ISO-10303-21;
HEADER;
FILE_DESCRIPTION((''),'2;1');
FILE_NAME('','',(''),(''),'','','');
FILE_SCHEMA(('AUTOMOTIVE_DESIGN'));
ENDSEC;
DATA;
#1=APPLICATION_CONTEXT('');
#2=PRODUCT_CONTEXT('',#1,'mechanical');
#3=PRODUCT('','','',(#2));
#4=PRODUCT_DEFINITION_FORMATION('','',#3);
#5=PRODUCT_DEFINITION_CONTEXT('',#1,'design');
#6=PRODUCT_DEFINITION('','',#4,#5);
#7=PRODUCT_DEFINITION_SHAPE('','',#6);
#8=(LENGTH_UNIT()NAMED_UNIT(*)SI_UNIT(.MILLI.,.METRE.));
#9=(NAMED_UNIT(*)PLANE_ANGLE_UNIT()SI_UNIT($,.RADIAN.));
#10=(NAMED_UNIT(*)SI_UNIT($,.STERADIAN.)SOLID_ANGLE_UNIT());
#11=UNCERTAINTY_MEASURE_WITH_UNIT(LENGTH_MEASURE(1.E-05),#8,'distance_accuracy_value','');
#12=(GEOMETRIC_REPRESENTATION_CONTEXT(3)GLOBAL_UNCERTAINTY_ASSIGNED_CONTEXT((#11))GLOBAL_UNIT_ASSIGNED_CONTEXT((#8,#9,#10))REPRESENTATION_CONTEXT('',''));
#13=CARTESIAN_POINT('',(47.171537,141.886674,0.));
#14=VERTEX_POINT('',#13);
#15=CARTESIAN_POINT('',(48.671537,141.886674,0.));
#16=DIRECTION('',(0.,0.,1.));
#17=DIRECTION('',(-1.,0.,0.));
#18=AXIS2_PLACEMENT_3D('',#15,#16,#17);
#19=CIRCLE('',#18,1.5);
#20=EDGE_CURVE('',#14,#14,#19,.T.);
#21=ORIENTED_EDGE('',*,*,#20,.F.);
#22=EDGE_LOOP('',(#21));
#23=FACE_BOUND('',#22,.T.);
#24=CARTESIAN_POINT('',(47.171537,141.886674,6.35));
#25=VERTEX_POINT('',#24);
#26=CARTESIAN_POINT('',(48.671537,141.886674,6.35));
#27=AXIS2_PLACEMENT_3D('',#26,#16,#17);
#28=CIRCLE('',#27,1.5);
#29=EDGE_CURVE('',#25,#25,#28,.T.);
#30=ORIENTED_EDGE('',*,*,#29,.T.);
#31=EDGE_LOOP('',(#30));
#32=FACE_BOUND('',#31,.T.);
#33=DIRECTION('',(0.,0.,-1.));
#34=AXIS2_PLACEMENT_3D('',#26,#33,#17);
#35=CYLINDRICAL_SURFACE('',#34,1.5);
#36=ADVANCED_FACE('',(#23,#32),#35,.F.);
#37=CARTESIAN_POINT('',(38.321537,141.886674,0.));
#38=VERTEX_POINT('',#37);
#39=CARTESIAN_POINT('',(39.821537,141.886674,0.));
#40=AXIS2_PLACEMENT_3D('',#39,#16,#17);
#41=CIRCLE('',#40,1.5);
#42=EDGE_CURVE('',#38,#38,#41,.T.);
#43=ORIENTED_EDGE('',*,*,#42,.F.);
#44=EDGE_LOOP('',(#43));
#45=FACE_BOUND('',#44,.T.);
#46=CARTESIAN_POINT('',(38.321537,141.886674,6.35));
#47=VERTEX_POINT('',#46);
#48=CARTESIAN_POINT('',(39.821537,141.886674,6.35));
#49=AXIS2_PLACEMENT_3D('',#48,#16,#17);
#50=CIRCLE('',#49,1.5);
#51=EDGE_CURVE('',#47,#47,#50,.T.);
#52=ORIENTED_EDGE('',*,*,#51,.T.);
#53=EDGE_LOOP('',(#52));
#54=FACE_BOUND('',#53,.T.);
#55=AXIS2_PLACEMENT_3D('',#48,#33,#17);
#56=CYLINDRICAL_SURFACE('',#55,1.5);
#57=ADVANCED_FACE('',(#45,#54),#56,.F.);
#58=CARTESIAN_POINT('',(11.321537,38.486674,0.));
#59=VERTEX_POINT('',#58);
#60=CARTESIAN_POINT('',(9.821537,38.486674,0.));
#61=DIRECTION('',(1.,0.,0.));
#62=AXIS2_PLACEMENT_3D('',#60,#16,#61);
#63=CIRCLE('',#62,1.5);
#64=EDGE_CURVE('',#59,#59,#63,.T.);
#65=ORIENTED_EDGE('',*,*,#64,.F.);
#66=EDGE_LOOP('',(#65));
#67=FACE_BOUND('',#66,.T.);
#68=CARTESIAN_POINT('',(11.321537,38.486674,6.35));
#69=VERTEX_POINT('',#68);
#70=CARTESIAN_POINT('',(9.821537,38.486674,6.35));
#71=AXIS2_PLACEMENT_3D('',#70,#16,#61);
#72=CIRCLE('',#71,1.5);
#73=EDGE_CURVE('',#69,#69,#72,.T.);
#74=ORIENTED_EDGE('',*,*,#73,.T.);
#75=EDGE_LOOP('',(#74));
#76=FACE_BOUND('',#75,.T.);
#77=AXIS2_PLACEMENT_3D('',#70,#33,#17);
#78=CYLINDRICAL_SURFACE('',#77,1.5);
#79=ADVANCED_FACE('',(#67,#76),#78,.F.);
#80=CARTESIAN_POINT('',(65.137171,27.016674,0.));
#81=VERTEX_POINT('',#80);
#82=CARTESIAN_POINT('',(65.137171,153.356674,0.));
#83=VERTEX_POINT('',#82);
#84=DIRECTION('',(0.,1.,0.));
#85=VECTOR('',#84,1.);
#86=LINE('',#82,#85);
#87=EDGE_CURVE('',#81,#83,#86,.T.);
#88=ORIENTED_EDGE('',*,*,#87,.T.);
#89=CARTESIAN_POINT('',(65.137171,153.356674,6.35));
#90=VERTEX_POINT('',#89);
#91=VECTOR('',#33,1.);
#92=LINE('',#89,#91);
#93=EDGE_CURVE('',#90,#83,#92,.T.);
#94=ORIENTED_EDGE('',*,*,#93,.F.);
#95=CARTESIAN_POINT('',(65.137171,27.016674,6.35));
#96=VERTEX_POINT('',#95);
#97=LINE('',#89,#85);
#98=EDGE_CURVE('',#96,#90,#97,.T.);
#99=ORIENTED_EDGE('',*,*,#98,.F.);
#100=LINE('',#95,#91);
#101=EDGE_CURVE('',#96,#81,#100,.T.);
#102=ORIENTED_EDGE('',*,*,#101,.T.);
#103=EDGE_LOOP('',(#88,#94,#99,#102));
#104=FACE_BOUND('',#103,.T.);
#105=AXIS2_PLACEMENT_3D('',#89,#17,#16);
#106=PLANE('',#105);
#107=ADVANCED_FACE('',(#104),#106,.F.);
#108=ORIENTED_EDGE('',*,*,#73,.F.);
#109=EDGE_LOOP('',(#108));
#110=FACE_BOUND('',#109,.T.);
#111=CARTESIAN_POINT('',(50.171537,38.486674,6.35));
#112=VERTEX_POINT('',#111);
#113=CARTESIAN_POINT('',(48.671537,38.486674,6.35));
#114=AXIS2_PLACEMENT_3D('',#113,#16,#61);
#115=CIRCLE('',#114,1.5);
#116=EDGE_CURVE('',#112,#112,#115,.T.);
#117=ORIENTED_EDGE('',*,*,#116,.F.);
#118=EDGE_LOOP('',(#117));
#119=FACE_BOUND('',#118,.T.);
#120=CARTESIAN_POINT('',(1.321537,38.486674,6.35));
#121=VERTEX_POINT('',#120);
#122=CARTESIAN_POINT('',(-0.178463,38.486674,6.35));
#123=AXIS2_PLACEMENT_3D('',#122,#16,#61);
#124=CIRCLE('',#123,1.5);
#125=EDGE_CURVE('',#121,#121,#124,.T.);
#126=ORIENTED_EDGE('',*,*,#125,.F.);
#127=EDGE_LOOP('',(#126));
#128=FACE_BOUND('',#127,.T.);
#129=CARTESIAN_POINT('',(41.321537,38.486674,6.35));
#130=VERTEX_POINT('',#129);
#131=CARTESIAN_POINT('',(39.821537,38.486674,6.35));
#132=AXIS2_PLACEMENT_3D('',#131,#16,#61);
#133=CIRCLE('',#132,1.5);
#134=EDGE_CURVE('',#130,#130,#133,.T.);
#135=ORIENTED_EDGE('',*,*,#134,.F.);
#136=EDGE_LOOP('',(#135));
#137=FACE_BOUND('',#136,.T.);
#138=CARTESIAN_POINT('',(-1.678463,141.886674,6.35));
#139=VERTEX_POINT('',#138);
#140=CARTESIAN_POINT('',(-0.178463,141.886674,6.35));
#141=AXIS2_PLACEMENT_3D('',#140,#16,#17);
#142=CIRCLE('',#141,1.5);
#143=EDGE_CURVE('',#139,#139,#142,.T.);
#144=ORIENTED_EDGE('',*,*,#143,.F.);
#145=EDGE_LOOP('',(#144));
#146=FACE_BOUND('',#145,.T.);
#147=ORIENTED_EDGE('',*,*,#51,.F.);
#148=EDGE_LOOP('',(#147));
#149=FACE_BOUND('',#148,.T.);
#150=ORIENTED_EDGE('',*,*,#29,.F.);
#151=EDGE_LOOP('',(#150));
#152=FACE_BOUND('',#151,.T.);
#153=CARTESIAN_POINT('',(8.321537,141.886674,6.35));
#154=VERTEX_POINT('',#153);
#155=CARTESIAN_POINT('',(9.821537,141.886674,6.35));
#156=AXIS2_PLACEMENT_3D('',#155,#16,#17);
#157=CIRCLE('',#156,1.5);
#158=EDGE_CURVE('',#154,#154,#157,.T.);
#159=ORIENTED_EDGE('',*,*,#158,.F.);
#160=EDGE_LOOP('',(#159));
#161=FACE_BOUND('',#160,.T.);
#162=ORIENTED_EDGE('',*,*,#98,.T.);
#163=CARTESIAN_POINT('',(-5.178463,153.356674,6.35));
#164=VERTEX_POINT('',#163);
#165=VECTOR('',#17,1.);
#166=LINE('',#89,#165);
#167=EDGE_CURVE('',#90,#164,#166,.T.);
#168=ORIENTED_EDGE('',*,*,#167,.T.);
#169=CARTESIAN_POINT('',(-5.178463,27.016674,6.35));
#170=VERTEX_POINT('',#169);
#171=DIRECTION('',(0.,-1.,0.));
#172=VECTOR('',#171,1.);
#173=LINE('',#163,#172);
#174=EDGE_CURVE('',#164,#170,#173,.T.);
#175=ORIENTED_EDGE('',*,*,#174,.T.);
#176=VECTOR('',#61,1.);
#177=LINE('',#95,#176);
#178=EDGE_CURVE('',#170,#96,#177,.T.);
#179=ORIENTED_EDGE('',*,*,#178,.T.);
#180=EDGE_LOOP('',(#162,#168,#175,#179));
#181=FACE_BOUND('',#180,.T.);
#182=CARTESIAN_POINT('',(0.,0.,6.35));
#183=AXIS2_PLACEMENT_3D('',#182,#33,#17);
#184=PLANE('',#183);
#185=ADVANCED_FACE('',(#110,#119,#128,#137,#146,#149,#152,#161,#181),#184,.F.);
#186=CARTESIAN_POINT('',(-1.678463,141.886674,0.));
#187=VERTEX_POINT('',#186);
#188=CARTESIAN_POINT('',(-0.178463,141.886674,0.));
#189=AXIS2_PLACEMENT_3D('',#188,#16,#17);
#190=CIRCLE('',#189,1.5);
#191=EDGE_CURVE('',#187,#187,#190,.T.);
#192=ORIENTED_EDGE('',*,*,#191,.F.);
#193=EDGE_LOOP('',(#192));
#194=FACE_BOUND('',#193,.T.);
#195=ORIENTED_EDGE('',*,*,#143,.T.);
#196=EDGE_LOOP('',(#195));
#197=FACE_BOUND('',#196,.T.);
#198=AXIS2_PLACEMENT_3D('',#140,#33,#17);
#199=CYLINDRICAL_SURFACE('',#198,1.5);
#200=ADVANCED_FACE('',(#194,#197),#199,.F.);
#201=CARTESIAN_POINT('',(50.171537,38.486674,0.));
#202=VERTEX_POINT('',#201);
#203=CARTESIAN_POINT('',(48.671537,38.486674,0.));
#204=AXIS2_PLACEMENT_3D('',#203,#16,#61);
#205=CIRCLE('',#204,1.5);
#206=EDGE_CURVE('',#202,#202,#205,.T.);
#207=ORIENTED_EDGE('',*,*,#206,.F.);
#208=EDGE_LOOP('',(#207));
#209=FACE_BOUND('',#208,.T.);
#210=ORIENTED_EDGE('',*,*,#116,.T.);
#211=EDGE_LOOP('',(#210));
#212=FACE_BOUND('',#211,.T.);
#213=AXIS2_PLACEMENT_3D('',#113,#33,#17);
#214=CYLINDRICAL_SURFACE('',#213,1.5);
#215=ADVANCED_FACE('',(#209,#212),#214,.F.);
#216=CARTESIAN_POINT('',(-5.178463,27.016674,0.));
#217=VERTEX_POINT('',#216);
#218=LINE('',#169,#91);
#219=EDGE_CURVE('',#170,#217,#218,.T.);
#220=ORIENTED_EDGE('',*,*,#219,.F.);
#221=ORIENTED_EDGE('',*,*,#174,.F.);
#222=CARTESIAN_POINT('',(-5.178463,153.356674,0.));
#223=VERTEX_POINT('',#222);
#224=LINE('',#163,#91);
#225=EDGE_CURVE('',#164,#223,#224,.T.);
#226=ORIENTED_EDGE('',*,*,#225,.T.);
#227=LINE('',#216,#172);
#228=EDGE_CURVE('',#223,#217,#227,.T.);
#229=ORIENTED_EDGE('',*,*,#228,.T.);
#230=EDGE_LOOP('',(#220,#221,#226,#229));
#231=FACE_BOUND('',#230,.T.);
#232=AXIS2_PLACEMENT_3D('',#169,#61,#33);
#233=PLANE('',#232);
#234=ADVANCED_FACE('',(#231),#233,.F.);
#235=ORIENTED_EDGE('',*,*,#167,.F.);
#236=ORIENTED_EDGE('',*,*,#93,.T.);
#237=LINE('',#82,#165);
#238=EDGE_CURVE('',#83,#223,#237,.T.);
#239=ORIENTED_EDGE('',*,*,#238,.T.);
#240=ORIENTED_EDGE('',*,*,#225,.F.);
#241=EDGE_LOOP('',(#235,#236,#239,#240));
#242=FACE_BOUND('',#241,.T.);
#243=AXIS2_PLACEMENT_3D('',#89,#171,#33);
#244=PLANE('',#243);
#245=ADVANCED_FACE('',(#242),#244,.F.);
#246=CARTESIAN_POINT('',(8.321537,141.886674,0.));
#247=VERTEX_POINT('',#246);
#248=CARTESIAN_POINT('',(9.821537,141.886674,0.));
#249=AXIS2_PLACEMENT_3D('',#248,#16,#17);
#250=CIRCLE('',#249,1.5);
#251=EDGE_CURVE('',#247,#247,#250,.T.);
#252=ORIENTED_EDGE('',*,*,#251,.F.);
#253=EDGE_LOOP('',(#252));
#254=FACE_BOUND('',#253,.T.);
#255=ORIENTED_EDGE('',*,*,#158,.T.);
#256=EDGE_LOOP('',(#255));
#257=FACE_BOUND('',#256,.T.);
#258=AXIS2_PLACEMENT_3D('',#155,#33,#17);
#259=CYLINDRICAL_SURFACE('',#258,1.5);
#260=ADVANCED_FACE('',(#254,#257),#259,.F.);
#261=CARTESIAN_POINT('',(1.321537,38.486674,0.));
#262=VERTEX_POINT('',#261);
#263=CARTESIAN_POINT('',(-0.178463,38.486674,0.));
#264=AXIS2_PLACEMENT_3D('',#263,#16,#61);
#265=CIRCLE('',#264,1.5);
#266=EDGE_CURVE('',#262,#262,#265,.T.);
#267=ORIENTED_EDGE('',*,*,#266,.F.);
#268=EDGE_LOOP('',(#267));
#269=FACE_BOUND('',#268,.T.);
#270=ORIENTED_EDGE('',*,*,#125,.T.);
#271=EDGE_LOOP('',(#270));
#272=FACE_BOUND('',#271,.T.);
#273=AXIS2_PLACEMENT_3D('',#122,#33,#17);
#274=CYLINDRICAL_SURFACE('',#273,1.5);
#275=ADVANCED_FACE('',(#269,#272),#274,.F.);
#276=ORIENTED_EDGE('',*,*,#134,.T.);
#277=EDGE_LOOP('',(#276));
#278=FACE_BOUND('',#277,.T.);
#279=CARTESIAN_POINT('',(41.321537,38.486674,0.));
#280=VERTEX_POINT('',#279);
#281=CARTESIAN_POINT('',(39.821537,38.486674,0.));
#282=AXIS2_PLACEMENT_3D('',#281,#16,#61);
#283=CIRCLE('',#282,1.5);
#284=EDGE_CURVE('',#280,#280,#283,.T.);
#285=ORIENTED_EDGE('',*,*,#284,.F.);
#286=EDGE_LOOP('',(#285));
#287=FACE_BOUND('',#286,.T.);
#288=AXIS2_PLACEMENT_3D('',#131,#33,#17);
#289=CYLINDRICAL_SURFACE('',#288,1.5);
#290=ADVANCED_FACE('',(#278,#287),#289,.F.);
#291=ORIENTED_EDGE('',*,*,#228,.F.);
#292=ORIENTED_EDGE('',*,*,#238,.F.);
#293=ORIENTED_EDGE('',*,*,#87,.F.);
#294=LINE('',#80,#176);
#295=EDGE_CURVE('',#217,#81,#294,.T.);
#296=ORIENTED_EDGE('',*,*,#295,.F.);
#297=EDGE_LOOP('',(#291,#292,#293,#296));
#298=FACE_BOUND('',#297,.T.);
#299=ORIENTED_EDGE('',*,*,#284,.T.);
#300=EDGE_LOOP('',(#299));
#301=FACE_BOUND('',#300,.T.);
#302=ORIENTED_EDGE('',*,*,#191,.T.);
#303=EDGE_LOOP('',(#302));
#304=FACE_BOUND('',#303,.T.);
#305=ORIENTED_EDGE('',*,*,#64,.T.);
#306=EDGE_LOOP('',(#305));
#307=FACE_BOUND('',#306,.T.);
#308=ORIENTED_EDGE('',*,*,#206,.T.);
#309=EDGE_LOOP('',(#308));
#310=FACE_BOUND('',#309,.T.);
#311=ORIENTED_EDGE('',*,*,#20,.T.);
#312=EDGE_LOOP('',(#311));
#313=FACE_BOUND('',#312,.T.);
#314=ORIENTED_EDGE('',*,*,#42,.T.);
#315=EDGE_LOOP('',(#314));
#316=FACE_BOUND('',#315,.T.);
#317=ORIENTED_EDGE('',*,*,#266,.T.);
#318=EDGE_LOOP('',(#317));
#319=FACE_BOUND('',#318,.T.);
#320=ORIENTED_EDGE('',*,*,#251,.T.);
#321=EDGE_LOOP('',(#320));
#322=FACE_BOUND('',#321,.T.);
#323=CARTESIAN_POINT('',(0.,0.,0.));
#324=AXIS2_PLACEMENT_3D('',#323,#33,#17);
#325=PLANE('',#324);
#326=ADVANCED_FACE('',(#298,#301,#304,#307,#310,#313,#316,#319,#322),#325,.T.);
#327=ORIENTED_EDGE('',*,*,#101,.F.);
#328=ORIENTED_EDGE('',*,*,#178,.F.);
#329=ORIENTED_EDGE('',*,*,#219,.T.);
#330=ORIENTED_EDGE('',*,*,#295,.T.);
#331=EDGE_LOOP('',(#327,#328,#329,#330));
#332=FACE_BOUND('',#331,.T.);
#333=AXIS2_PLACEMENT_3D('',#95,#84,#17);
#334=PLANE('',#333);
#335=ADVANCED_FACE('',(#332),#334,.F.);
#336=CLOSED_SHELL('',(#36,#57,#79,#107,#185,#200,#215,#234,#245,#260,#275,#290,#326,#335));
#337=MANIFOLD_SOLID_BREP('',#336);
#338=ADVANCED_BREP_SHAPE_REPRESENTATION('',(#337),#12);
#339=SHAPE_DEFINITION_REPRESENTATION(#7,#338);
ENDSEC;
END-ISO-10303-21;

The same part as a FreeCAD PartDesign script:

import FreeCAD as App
import Part
import Sketcher
from FreeCAD import Vector
Q = App.Units.Quantity

doc = App.newDocument("Part")
body = doc.addObject("PartDesign::Body", "Body")

sketch1 = body.newObject("Sketcher::SketchObject", "Sketch")
sketch1.AttachmentSupport = (doc.getObject("XY_Plane"), [""])
sketch1.MapMode = "FlatFace"
sketch1.addGeometry(Part.LineSegment(Vector(-5.2, 153.4, 0), Vector(-5.2, 27, 0)), False)
sketch1.addGeometry(Part.LineSegment(Vector(-5.2, 27, 0), Vector(65.1, 27, 0)), False)
sketch1.addGeometry(Part.LineSegment(Vector(65.1, 27, 0), Vector(65.1, 153.4, 0)), False)
sketch1.addGeometry(Part.LineSegment(Vector(65.1, 153.4, 0), Vector(-5.2, 153.4, 0)), False)
sketch1.addGeometry(Part.Circle(Vector(48.7, 38.5, 0), Vector(0, 0, 1), 1.5), False)
sketch1.addGeometry(Part.Circle(Vector(39.8, 38.5, 0), Vector(0, 0, 1), 1.5), False)
sketch1.addGeometry(Part.Circle(Vector(9.8, 38.5, 0), Vector(0, 0, 1), 1.5), False)
sketch1.addGeometry(Part.Circle(Vector(-0.2, 38.5, 0), Vector(0, 0, 1), 1.5), False)
sketch1.addGeometry(Part.Circle(Vector(48.7, 141.9, 0), Vector(0, 0, 1), 1.5), False)
sketch1.addGeometry(Part.Circle(Vector(39.8, 141.9, 0), Vector(0, 0, 1), 1.5), False)
sketch1.addGeometry(Part.Circle(Vector(9.8, 141.9, 0), Vector(0, 0, 1), 1.5), False)
sketch1.addGeometry(Part.Circle(Vector(-0.2, 141.9, 0), Vector(0, 0, 1), 1.5), False)
sketch1.addConstraint(Sketcher.Constraint("Coincident", 0, 2, 1, 1))
sketch1.addConstraint(Sketcher.Constraint("Coincident", 1, 2, 2, 1))
sketch1.addConstraint(Sketcher.Constraint("Coincident", 2, 2, 3, 1))
sketch1.addConstraint(Sketcher.Constraint("Coincident", 3, 2, 0, 1))
sketch1.addConstraint(Sketcher.Constraint("Vertical", 0))
sketch1.addConstraint(Sketcher.Constraint("Horizontal", 1))
sketch1.addConstraint(Sketcher.Constraint("Vertical", 2))
sketch1.addConstraint(Sketcher.Constraint("Horizontal", 3))
sketch1.addConstraint(Sketcher.Constraint("Equal", 4, 5))
sketch1.addConstraint(Sketcher.Constraint("Equal", 5, 6))
sketch1.addConstraint(Sketcher.Constraint("Equal", 6, 7))
sketch1.addConstraint(Sketcher.Constraint("Equal", 7, 8))
sketch1.addConstraint(Sketcher.Constraint("Equal", 8, 9))
sketch1.addConstraint(Sketcher.Constraint("Equal", 9, 10))
sketch1.addConstraint(Sketcher.Constraint("Equal", 10, 11))
sketch1.addConstraint(Sketcher.Constraint("Horizontal", 4, 3, 5, 3))
sketch1.addConstraint(Sketcher.Constraint("Horizontal", 5, 3, 6, 3))
sketch1.addConstraint(Sketcher.Constraint("Horizontal", 6, 3, 7, 3))
sketch1.addConstraint(Sketcher.Constraint("Horizontal", 8, 3, 9, 3))
sketch1.addConstraint(Sketcher.Constraint("Horizontal", 9, 3, 10, 3))
sketch1.addConstraint(Sketcher.Constraint("Horizontal", 10, 3, 11, 3))
sketch1.addConstraint(Sketcher.Constraint("Vertical", 4, 3, 8, 3))
sketch1.addConstraint(Sketcher.Constraint("Vertical", 5, 3, 9, 3))
sketch1.addConstraint(Sketcher.Constraint("Vertical", 6, 3, 10, 3))
sketch1.addConstraint(Sketcher.Constraint("Vertical", 7, 3, 11, 3))
sketch1.addConstraint(Sketcher.Constraint("Diameter", 4, Q("3 mm")))
sketch1.addConstraint(Sketcher.Constraint("DistanceX", 6, 3, 5, 3, Q("30 mm")))
sketch1.addConstraint(Sketcher.Constraint("DistanceX", 7, 3, 6, 3, Q("10 mm")))
sketch1.addConstraint(Sketcher.Constraint("DistanceX", 0, 2, 7, 3, Q("5 mm")))
sketch1.addConstraint(Sketcher.Constraint("DistanceY", 0, 2, 0, 1, Q("126.34 mm")))
sketch1.addConstraint(Sketcher.Constraint("DistanceY", 4, 3, 8, 3, Q("103.4 mm")))
sketch1.addConstraint(Sketcher.Constraint("DistanceX", 5, 3, 4, 3, Q("8.85 mm")))
sketch1.addConstraint(Sketcher.Constraint("DistanceY", 0, 2, 7, 3, Q("11.47 mm")))
sketch1.addConstraint(Sketcher.Constraint("DistanceX", 1, 1, 1, 2, Q("70.315634 mm")))
sketch1.addConstraint(Sketcher.Constraint("DistanceX", -1, 1, 1, 2, Q("65.137171 mm")))
sketch1.addConstraint(Sketcher.Constraint("DistanceY", -1, 1, 4, 3, Q("38.486674 mm")))
pad1 = body.newObject("PartDesign::Pad", "Pad")
pad1.Profile = sketch1
pad1.Length = 6.35

doc.recompute()
